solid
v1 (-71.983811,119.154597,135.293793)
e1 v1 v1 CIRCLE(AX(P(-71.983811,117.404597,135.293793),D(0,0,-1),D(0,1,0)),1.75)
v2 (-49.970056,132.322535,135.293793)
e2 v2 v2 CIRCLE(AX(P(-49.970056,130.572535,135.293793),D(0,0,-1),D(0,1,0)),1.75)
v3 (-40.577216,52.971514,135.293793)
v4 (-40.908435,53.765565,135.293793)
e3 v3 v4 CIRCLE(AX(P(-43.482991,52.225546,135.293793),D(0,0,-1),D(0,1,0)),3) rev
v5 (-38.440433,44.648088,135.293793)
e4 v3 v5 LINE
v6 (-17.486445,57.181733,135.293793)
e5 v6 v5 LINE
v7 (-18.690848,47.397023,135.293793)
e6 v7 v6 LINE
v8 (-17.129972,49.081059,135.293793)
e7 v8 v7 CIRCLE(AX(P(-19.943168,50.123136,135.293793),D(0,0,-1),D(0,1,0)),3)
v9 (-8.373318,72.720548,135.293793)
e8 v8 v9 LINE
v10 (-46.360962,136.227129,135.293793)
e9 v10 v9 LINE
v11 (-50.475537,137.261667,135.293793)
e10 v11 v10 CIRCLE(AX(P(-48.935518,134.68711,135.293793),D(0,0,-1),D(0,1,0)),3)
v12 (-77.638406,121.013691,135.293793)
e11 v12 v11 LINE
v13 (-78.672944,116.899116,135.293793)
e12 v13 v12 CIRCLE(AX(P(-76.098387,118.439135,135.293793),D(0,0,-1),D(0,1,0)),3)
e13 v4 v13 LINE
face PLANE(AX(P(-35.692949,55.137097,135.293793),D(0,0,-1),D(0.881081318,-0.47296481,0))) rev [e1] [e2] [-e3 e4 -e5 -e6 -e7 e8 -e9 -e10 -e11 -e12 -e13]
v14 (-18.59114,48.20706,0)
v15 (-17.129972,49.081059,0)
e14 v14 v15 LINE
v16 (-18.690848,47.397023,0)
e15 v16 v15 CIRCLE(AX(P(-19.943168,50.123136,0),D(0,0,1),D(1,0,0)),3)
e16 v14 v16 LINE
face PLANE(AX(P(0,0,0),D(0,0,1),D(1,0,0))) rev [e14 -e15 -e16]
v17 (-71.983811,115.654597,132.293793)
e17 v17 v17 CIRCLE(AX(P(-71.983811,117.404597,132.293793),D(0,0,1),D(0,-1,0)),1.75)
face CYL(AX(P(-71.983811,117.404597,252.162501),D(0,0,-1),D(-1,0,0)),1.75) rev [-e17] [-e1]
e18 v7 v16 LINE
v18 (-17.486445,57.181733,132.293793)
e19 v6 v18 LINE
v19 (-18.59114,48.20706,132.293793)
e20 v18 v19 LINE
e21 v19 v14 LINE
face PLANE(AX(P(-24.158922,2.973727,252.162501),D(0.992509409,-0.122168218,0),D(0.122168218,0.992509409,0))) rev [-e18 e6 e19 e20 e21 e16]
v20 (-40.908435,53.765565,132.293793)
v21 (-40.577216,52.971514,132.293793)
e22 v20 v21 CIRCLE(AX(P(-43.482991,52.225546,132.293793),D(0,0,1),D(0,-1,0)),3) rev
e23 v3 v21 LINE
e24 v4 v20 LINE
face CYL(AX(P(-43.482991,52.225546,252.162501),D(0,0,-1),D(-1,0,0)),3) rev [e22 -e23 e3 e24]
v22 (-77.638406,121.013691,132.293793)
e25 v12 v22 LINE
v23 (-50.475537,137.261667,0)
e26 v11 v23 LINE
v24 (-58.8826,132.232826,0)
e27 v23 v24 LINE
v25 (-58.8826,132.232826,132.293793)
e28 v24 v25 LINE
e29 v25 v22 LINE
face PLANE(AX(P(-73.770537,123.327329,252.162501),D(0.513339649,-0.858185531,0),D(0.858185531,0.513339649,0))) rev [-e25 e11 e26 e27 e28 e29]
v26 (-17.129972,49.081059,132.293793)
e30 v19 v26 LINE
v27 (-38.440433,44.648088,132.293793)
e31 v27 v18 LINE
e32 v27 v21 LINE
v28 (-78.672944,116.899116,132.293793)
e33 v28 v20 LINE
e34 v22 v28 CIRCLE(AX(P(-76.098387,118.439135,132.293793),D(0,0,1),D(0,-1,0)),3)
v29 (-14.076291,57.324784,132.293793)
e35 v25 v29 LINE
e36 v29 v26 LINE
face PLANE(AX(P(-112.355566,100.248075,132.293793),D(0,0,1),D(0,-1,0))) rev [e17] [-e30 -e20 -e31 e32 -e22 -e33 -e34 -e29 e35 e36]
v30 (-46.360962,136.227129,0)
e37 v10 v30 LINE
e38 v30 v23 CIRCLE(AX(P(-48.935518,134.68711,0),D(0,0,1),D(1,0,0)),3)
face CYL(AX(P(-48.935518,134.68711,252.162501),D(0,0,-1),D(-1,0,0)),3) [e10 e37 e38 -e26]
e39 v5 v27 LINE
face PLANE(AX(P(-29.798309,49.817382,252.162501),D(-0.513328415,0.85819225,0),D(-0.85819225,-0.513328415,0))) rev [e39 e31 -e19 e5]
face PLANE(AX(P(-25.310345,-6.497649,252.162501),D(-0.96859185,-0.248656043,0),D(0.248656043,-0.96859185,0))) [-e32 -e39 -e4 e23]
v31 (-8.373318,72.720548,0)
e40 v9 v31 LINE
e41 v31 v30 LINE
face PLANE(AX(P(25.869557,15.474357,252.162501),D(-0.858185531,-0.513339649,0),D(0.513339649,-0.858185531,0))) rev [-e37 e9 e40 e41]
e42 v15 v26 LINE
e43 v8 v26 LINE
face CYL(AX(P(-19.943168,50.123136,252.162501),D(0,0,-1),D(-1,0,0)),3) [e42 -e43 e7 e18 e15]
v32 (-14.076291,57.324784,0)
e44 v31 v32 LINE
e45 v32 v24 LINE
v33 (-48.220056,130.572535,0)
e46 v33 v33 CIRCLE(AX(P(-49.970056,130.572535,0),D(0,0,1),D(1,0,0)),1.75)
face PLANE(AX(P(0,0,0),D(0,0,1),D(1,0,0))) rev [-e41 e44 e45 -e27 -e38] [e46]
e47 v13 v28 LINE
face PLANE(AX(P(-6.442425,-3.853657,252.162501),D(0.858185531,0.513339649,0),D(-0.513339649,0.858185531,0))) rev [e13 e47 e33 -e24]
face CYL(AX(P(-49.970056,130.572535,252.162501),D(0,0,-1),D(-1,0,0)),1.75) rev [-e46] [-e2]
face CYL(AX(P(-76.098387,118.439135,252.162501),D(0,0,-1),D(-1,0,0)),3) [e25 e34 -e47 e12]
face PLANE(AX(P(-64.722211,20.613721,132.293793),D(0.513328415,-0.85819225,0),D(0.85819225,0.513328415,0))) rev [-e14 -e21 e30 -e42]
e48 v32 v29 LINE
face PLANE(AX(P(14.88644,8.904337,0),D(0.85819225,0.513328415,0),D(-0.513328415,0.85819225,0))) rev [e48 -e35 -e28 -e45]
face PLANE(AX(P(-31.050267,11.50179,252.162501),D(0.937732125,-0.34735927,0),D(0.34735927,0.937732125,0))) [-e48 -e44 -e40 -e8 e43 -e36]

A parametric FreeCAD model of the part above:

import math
import FreeCAD as App
import Part
import Sketcher
from FreeCAD import Vector


def add_polygon(sketch, points):
    """Adds a closed chain of lines whose ends are joined by coincident constraints."""
    first, n = sketch.GeometryCount, len(points)
    for a, b in zip(points, points[1:] + points[:1]):
        sketch.addGeometry(Part.LineSegment(App.Vector(*a, 0), App.Vector(*b, 0)), False)
    for i in range(n):
        sketch.addConstraint(Sketcher.Constraint("Coincident", first + i, 2, first + (i + 1) % n, 1))

doc = App.newDocument("Part")
body = doc.addObject("PartDesign::Body", "Body")

sketch1 = body.newObject("Sketcher::SketchObject", "Sketch")
sketch1.AttachmentSupport = (doc.getObject("XY_Plane"), [""])
sketch1.MapMode = "FlatFace"
sketch1.addGeometry(Part.LineSegment(Vector(-17.1, 49.1, 0), Vector(-8.4, 72.7, 0)), False)
sketch1.addGeometry(Part.LineSegment(Vector(-8.4, 72.7, 0), Vector(-46.4, 136.2, 0)), False)
sketch1.addGeometry(Part.ArcOfCircle(Part.Circle(Vector(-48.9, 134.7, 0), Vector(0, 0, 1), 3), math.radians(31), math.radians(121)), False)
sketch1.addGeometry(Part.LineSegment(Vector(-50.5, 137.3, 0), Vector(-77.6, 121, 0)), False)
sketch1.addGeometry(Part.ArcOfCircle(Part.Circle(Vector(-76.1, 118.4, 0), Vector(0, 0, 1), 3), math.radians(121), math.radians(211)), False)
sketch1.addGeometry(Part.LineSegment(Vector(-78.7, 116.9, 0), Vector(-40.9, 53.8, 0)), False)
sketch1.addGeometry(Part.ArcOfCircle(Part.Circle(Vector(-43.5, 52.2, 0), Vector(0, 0, 1), 3), math.radians(14.4), math.radians(30.89)), False)
sketch1.addGeometry(Part.LineSegment(Vector(-40.6, 53, 0), Vector(-38.4, 44.6, 0)), False)
sketch1.addGeometry(Part.LineSegment(Vector(-38.4, 44.6, 0), Vector(-17.5, 57.2, 0)), False)
sketch1.addGeometry(Part.LineSegment(Vector(-17.5, 57.2, 0), Vector(-18.7, 47.4, 0)), False)
sketch1.addGeometry(Part.ArcOfCircle(Part.Circle(Vector(-19.9, 50.1, 0), Vector(0, 0, 1), 3), math.radians(-65), math.radians(-20)), False)
sketch1.addGeometry(Part.Circle(Vector(-72, 117.4, 0), Vector(0, 0, 1), 1.8), False)
sketch1.addGeometry(Part.Circle(Vector(-50, 130.6, 0), Vector(0, 0, 1), 1.8), False)
sketch1.addConstraint(Sketcher.Constraint("Coincident", 0, 2, 1, 1))
sketch1.addConstraint(Sketcher.Constraint("Tangent", 1, 2, 2, 1))
sketch1.addConstraint(Sketcher.Constraint("Tangent", 2, 2, 3, 1))
sketch1.addConstraint(Sketcher.Constraint("Tangent", 3, 2, 4, 1))
sketch1.addConstraint(Sketcher.Constraint("Tangent", 4, 2, 5, 1))
sketch1.addConstraint(Sketcher.Constraint("Tangent", 5, 2, 6, 2))
sketch1.addConstraint(Sketcher.Constraint("Tangent", 6, 1, 7, 1))
sketch1.addConstraint(Sketcher.Constraint("Coincident", 7, 2, 8, 1))
sketch1.addConstraint(Sketcher.Constraint("Coincident", 8, 2, 9, 1))
sketch1.addConstraint(Sketcher.Constraint("Coincident", 9, 2, 10, 1))
sketch1.addConstraint(Sketcher.Constraint("Tangent", 10, 2, 0, 1))
sketch1.addConstraint(Sketcher.Constraint("Equal", 2, 4))
sketch1.addConstraint(Sketcher.Constraint("Equal", 4, 6))
sketch1.addConstraint(Sketcher.Constraint("Equal", 6, 10))
sketch1.addConstraint(Sketcher.Constraint("Equal", 11, 12))
sketch1.addConstraint(Sketcher.Constraint("Perpendicular", 1, 3))
sketch1.addConstraint(Sketcher.Constraint("Perpendicular", 3, 5))
sketch1.addConstraint(Sketcher.Constraint("Radius", 2, 3.0))
sketch1.addConstraint(Sketcher.Constraint("Diameter", 11, 3.5))
sketch1.addConstraint(Sketcher.Constraint("DistanceY", 10, 3, 4, 3, 68.315998))
sketch1.addConstraint(Sketcher.Constraint("DistanceX", 5, 2, 7, 2, 2.468002))
sketch1.addConstraint(Sketcher.Constraint("DistanceY", 4, 3, 12, 3, 12.1334))
sketch1.addConstraint(Sketcher.Constraint("DistanceX", 2, 3, 0, 2, 40.5622))
sketch1.addConstraint(Sketcher.Constraint("Distance", 3, 31.651511))
sketch1.addConstraint(Sketcher.Constraint("Distance", 5, 73.56632))
sketch1.addConstraint(Sketcher.Constraint("DistanceX", 2, 3, -1, 1, 48.935518))
sketch1.addConstraint(Sketcher.Constraint("DistanceY", -1, 1, 2, 3, 134.68711))
sketch1.addConstraint(Sketcher.Constraint("DistanceX", 6, 3, -1, 1, 43.482991))
sketch1.addConstraint(Sketcher.Constraint("DistanceX", 10, 3, -1, 1, 19.943168))
sketch1.addConstraint(Sketcher.Constraint("DistanceX", 11, 3, -1, 1, 71.983811))
sketch1.addConstraint(Sketcher.Constraint("DistanceY", 6, 3, 11, 3, 65.179051))
sketch1.addConstraint(Sketcher.Constraint("DistanceX", 4, 3, 12, 3, 26.128331))
sketch1.addConstraint(Sketcher.Constraint("DistanceX", 5, 2, 6, 1, 0.331219))
sketch1.addConstraint(Sketcher.Constraint("DistanceX", 6, 1, 8, 2, 23.09077))
sketch1.addConstraint(Sketcher.Constraint("DistanceY", 6, 1, 8, 2, 4.210219))
sketch1.addConstraint(Sketcher.Constraint("DistanceX", 10, 3, 9, 2, 1.252321))
pad1 = body.newObject("PartDesign::Pad", "Pad")
pad1.Profile = sketch1
pad1.Length = 135.293793

sketch2 = body.newObject("Sketcher::SketchObject", "Sketch001")
sketch2.Placement = App.Placement(Vector(14.88644, 8.904337, 0), App.Rotation(Vector(0, 0, -1), Vector(-0.513328415, 0.85819225, 0), Vector(0.85819225, 0.513328415, 0), "ZXY"))
add_polygon(sketch2, [(-132, 144), (-132, 51), (2, 51), (2, 144)])
sketch2.addConstraint(Sketcher.Constraint("Vertical", 0))
sketch2.addConstraint(Sketcher.Constraint("Horizontal", 1))
sketch2.addConstraint(Sketcher.Constraint("Vertical", 2))
sketch2.addConstraint(Sketcher.Constraint("Horizontal", 3))
sketch2.addConstraint(Sketcher.Constraint("DistanceX", 1, 1, 1, 2, 134.0))
sketch2.addConstraint(Sketcher.Constraint("DistanceY", 0, 2, 0, 1, 92.793141))
sketch2.addConstraint(Sketcher.Constraint("DistanceX", 0, 2, -1, 1, 132.293793))
sketch2.addConstraint(Sketcher.Constraint("DistanceY", -1, 1, 0, 2, 50.914285))
pocket1 = body.newObject("PartDesign::Pocket", "Pocket")
pocket1.Profile = sketch2
pocket1.Type = "ThroughAll"

doc.recompute()
